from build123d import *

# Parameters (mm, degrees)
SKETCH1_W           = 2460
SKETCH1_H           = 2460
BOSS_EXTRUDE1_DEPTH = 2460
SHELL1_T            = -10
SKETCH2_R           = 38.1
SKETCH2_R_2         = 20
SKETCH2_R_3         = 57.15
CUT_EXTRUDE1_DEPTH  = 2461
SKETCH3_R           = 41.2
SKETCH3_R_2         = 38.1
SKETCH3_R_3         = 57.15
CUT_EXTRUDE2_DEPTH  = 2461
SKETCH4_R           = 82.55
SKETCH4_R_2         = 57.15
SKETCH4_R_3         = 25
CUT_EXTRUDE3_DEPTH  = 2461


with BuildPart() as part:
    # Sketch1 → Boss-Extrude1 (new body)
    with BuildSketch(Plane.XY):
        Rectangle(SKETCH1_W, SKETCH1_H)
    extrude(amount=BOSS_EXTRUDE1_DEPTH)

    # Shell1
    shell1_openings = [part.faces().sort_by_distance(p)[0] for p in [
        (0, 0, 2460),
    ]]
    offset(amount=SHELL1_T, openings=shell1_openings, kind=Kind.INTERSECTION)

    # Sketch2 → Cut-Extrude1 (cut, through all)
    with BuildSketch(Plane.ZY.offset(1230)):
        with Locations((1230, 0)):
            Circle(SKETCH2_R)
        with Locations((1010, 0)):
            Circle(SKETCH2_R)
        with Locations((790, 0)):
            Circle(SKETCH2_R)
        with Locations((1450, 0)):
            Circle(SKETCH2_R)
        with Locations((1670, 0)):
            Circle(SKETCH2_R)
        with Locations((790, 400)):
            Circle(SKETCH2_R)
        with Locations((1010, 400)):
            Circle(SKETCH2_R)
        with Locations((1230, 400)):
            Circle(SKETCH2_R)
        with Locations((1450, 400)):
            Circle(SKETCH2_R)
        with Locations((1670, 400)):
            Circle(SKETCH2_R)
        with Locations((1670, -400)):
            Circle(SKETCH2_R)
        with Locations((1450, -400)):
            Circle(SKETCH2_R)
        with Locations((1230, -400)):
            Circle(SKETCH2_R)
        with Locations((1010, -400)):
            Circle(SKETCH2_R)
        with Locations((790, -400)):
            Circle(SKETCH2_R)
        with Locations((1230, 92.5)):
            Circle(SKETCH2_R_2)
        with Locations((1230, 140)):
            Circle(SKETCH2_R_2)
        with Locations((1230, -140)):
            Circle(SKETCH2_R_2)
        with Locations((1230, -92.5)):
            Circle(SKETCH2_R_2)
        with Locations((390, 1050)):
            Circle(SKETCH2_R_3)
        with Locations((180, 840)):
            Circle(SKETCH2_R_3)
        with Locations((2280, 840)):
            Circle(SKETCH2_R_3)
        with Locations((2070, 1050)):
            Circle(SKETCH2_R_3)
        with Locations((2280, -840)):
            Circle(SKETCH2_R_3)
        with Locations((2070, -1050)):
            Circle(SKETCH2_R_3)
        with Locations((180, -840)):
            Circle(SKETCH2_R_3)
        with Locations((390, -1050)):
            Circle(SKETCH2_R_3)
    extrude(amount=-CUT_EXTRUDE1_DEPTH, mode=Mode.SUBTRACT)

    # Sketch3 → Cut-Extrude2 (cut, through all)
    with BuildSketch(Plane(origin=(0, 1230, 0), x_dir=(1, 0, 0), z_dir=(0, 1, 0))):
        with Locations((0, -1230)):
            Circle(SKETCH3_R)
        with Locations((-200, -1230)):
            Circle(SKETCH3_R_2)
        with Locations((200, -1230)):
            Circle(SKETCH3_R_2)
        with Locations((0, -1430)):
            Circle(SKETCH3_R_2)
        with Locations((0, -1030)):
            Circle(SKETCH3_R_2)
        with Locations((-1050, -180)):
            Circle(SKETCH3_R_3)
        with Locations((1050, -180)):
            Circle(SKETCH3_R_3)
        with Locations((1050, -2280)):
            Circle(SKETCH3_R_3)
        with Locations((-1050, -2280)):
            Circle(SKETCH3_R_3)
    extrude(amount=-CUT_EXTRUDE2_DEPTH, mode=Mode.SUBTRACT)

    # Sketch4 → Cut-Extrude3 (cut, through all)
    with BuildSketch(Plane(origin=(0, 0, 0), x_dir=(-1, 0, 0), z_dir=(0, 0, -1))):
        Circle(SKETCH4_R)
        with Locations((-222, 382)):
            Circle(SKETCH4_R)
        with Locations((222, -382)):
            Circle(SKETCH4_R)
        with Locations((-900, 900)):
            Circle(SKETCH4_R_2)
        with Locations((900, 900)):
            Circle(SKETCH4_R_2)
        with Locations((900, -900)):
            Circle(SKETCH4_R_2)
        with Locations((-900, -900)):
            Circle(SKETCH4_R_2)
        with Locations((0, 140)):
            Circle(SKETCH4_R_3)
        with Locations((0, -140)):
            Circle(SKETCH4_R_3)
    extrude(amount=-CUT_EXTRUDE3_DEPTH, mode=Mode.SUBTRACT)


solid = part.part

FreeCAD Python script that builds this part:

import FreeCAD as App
import Part
import Sketcher

V = App.Vector
Q = App.Units.Quantity


def faces_at(feature, points):
    """Names of the faces that lie closest to the given points."""
    faces = feature.Shape.Faces
    near = lambda p: min(range(len(faces)), key=lambda i: faces[i].distToShape(Part.Vertex(*p))[0])
    return sorted({f"Face{near(p) + 1}" for p in points})

doc = App.newDocument("Part")
body = doc.addObject("PartDesign::Body", "Body")

sketch1 = doc.addObject("Sketcher::SketchObject", "Sketch")
body.addObject(sketch1)
sketch1.AttachmentSupport = (doc.XY_Plane, [""])
sketch1.MapMode = "FlatFace"
sketch1.addGeometry(Part.LineSegment(V(-1230, 1230, 0), V(-1230, -1230, 0)), False)
sketch1.addGeometry(Part.LineSegment(V(-1230, -1230, 0), V(1230, -1230, 0)), False)
sketch1.addGeometry(Part.LineSegment(V(1230, -1230, 0), V(1230, 1230, 0)), False)
sketch1.addGeometry(Part.LineSegment(V(1230, 1230, 0), V(-1230, 1230, 0)), False)
sketch1.addConstraint(Sketcher.Constraint("Coincident", 0, 2, 1, 1))
sketch1.addConstraint(Sketcher.Constraint("Coincident", 1, 2, 2, 1))
sketch1.addConstraint(Sketcher.Constraint("Coincident", 2, 2, 3, 1))
sketch1.addConstraint(Sketcher.Constraint("Coincident", 3, 2, 0, 1))
sketch1.addConstraint(Sketcher.Constraint("Vertical", 0))
sketch1.addConstraint(Sketcher.Constraint("Horizontal", 1))
sketch1.addConstraint(Sketcher.Constraint("Vertical", 2))
sketch1.addConstraint(Sketcher.Constraint("Horizontal", 3))
sketch1.addConstraint(Sketcher.Constraint("Symmetric", 0, 2, 2, 2, -1, 1))
sketch1.addConstraint(Sketcher.Constraint("Equal", 3, 0))
sketch1.addConstraint(Sketcher.Constraint("DistanceX", 1, 1, 1, 2, Q("2460 mm")))
pad1 = doc.addObject("PartDesign::Pad", "Pad")
body.addObject(pad1)
pad1.Profile = sketch1
pad1.Length = 2460
doc.recompute()

thickness = doc.addObject("PartDesign::Thickness", "Thickness")
body.addObject(thickness)
thickness.Base = (pad1, faces_at(pad1, [(0, 0, 2460)]))
thickness.Value = 10
thickness.Reversed = True
thickness.Join = "Intersection"

sketch2 = doc.addObject("Sketcher::SketchObject", "Sketch001")
body.addObject(sketch2)
sketch2.AttachmentSupport = (doc.YZ_Plane, [""])
sketch2.MapMode = "FlatFace"
sketch2.AttachmentOffset = App.Placement(V(0, 0, -1230), App.Rotation())
sketch2.addGeometry(Part.Circle(V(0, 1230, 0), V(0, 0, 1), 38.1), False)
sketch2.addGeometry(Part.Circle(V(0, 1010, 0), V(0, 0, 1), 38.1), False)
sketch2.addGeometry(Part.Circle(V(0, 790, 0), V(0, 0, 1), 38.1), False)
sketch2.addGeometry(Part.Circle(V(0, 1450, 0), V(0, 0, 1), 38.1), False)
sketch2.addGeometry(Part.Circle(V(0, 1670, 0), V(0, 0, 1), 38.1), False)
sketch2.addGeometry(Part.Circle(V(400, 790, 0), V(0, 0, 1), 38.1), False)
sketch2.addGeometry(Part.Circle(V(400, 1010, 0), V(0, 0, 1), 38.1), False)
sketch2.addGeometry(Part.Circle(V(400, 1230, 0), V(0, 0, 1), 38.1), False)
sketch2.addGeometry(Part.Circle(V(400, 1450, 0), V(0, 0, 1), 38.1), False)
sketch2.addGeometry(Part.Circle(V(400, 1670, 0), V(0, 0, 1), 38.1), False)
sketch2.addGeometry(Part.Circle(V(-400, 1670, 0), V(0, 0, 1), 38.1), False)
sketch2.addGeometry(Part.Circle(V(-400, 1450, 0), V(0, 0, 1), 38.1), False)
sketch2.addGeometry(Part.Circle(V(-400, 1230, 0), V(0, 0, 1), 38.1), False)
sketch2.addGeometry(Part.Circle(V(-400, 1010, 0), V(0, 0, 1), 38.1), False)
sketch2.addGeometry(Part.Circle(V(-400, 790, 0), V(0, 0, 1), 38.1), False)
sketch2.addGeometry(Part.Circle(V(92.5, 1230, 0), V(0, 0, 1), 20), False)
sketch2.addGeometry(Part.Circle(V(140, 1230, 0), V(0, 0, 1), 20), False)
sketch2.addGeometry(Part.Circle(V(-140, 1230, 0), V(0, 0, 1), 20), False)
sketch2.addGeometry(Part.Circle(V(-92.5, 1230, 0), V(0, 0, 1), 20), False)
sketch2.addGeometry(Part.Circle(V(1050, 390, 0), V(0, 0, 1), 57.15), False)
sketch2.addGeometry(Part.Circle(V(840, 180, 0), V(0, 0, 1), 57.15), False)
sketch2.addGeometry(Part.Circle(V(840, 2280, 0), V(0, 0, 1), 57.15), False)
sketch2.addGeometry(Part.Circle(V(1050, 2070, 0), V(0, 0, 1), 57.15), False)
sketch2.addGeometry(Part.Circle(V(-840, 2280, 0), V(0, 0, 1), 57.15), False)
sketch2.addGeometry(Part.Circle(V(-1050, 2070, 0), V(0, 0, 1), 57.15), False)
sketch2.addGeometry(Part.Circle(V(-840, 180, 0), V(0, 0, 1), 57.15), False)
sketch2.addGeometry(Part.Circle(V(-1050, 390, 0), V(0, 0, 1), 57.15), False)
sketch2.addConstraint(Sketcher.Constraint("Equal", 0, 1))
sketch2.addConstraint(Sketcher.Constraint("Equal", 1, 2))
sketch2.addConstraint(Sketcher.Constraint("Equal", 2, 3))
sketch2.addConstraint(Sketcher.Constraint("Equal", 3, 4))
sketch2.addConstraint(Sketcher.Constraint("Equal", 4, 5))
sketch2.addConstraint(Sketcher.Constraint("Equal", 5, 6))
sketch2.addConstraint(Sketcher.Constraint("Equal", 6, 7))
sketch2.addConstraint(Sketcher.Constraint("Equal", 7, 8))
sketch2.addConstraint(Sketcher.Constraint("Equal", 8, 9))
sketch2.addConstraint(Sketcher.Constraint("Equal", 9, 10))
sketch2.addConstraint(Sketcher.Constraint("Equal", 10, 11))
sketch2.addConstraint(Sketcher.Constraint("Equal", 11, 12))
sketch2.addConstraint(Sketcher.Constraint("Equal", 12, 13))
sketch2.addConstraint(Sketcher.Constraint("Equal", 13, 14))
sketch2.addConstraint(Sketcher.Constraint("Equal", 15, 16))
sketch2.addConstraint(Sketcher.Constraint("Equal", 16, 17))
sketch2.addConstraint(Sketcher.Constraint("Equal", 17, 18))
sketch2.addConstraint(Sketcher.Constraint("Equal", 19, 20))
sketch2.addConstraint(Sketcher.Constraint("Equal", 20, 21))
sketch2.addConstraint(Sketcher.Constraint("Equal", 21, 22))
sketch2.addConstraint(Sketcher.Constraint("Equal", 22, 23))
sketch2.addConstraint(Sketcher.Constraint("Equal", 23, 24))
sketch2.addConstraint(Sketcher.Constraint("Equal", 24, 25))
sketch2.addConstraint(Sketcher.Constraint("Equal", 25, 26))
sketch2.addConstraint(Sketcher.Constraint("Symmetric", 9, 3, 10, 3, -2))
sketch2.addConstraint(Sketcher.Constraint("Symmetric", 8, 3, 11, 3, -2))
sketch2.addConstraint(Sketcher.Constraint("Symmetric", 7, 3, 12, 3, -2))
sketch2.addConstraint(Sketcher.Constraint("Symmetric", 6, 3, 13, 3, -2))
sketch2.addConstraint(Sketcher.Constraint("Symmetric", 5, 3, 14, 3, -2))
sketch2.addConstraint(Sketcher.Constraint("Symmetric", 16, 3, 17, 3, -2))
sketch2.addConstraint(Sketcher.Constraint("Symmetric", 15, 3, 18, 3, -2))
sketch2.addConstraint(Sketcher.Constraint("Symmetric", 21, 3, 23, 3, -2))
sketch2.addConstraint(Sketcher.Constraint("Symmetric", 22, 3, 24, 3, -2))
sketch2.addConstraint(Sketcher.Constraint("Symmetric", 20, 3, 25, 3, -2))
sketch2.addConstraint(Sketcher.Constraint("Symmetric", 19, 3, 26, 3, -2))
sketch2.addConstraint(Sketcher.Constraint("PointOnObject", 0, 3, -2))
sketch2.addConstraint(Sketcher.Constraint("PointOnObject", 1, 3, -2))
sketch2.addConstraint(Sketcher.Constraint("PointOnObject", 2, 3, -2))
sketch2.addConstraint(Sketcher.Constraint("PointOnObject", 3, 3, -2))
sketch2.addConstraint(Sketcher.Constraint("PointOnObject", 4, 3, -2))
sketch2.addConstraint(Sketcher.Constraint("Horizontal", 2, 3, 5, 3))
sketch2.addConstraint(Sketcher.Constraint("Horizontal", 1, 3, 6, 3))
sketch2.addConstraint(Sketcher.Constraint("Horizontal", 0, 3, 7, 3))
sketch2.addConstraint(Sketcher.Constraint("Horizontal", 3, 3, 8, 3))
sketch2.addConstraint(Sketcher.Constraint("Horizontal", 4, 3, 9, 3))
sketch2.addConstraint(Sketcher.Constraint("Horizontal", 12, 3, 15, 3))
sketch2.addConstraint(Sketcher.Constraint("Horizontal", 15, 3, 16, 3))
sketch2.addConstraint(Sketcher.Constraint("Vertical", 5, 3, 6, 3))
sketch2.addConstraint(Sketcher.Constraint("Vertical", 6, 3, 7, 3))
sketch2.addConstraint(Sketcher.Constraint("Vertical", 7, 3, 8, 3))
sketch2.addConstraint(Sketcher.Constraint("Vertical", 8, 3, 9, 3))
sketch2.addConstraint(Sketcher.Constraint("Vertical", 20, 3, 21, 3))
sketch2.addConstraint(Sketcher.Constraint("Vertical", 19, 3, 22, 3))
sketch2.addConstraint(Sketcher.Constraint("Diameter", 15, Q("40 mm")))
sketch2.addConstraint(Sketcher.Constraint("Diameter", 0, Q("76.2 mm")))
sketch2.addConstraint(Sketcher.Constraint("Diameter", 19, Q("114.3 mm")))
sketch2.addConstraint(Sketcher.Constraint("DistanceY", -1, 1, 0, 3, Q("1230 mm")))
sketch2.addConstraint(Sketcher.Constraint("DistanceY", -1, 1, 1, 3, Q("1010 mm")))
sketch2.addConstraint(Sketcher.Constraint("DistanceY", -1, 1, 2, 3, Q("790 mm")))
sketch2.addConstraint(Sketcher.Constraint("DistanceY", -1, 1, 3, 3, Q("1450 mm")))
sketch2.addConstraint(Sketcher.Constraint("DistanceY", -1, 1, 4, 3, Q("1670 mm")))
sketch2.addConstraint(Sketcher.Constraint("DistanceX", -1, 1, 5, 3, Q("400 mm")))
sketch2.addConstraint(Sketcher.Constraint("DistanceX", -1, 1, 16, 3, Q("140 mm")))
sketch2.addConstraint(Sketcher.Constraint("DistanceX", -1, 1, 19, 3, Q("1050 mm")))
sketch2.addConstraint(Sketcher.Constraint("DistanceY", -1, 1, 19, 3, Q("390 mm")))
sketch2.addConstraint(Sketcher.Constraint("DistanceX", -1, 1, 20, 3, Q("840 mm")))
sketch2.addConstraint(Sketcher.Constraint("DistanceY", -1, 1, 20, 3, Q("180 mm")))
sketch2.addConstraint(Sketcher.Constraint("DistanceY", -1, 1, 21, 3, Q("2280 mm")))
sketch2.addConstraint(Sketcher.Constraint("DistanceY", -1, 1, 22, 3, Q("2070 mm")))
sketch2.addConstraint(Sketcher.Constraint("DistanceX", 18, 3, 15, 3, Q("185 mm")))
pocket1 = doc.addObject("PartDesign::Pocket", "Pocket")
body.addObject(pocket1)
pocket1.Profile = sketch2
pocket1.Type = "ThroughAll"
pocket1.Reversed = True

sketch3 = doc.addObject("Sketcher::SketchObject", "Sketch002")
body.addObject(sketch3)
sketch3.AttachmentSupport = (doc.XZ_Plane, [""])
sketch3.MapMode = "FlatFace"
sketch3.AttachmentOffset = App.Placement(V(0, 0, -1230), App.Rotation())
sketch3.addGeometry(Part.Circle(V(0, 1230, 0), V(0, 0, 1), 41.2), False)
sketch3.addGeometry(Part.Circle(V(-200, 1230, 0), V(0, 0, 1), 38.1), False)
sketch3.addGeometry(Part.Circle(V(200, 1230, 0), V(0, 0, 1), 38.1), False)
sketch3.addGeometry(Part.Circle(V(0, 1430, 0), V(0, 0, 1), 38.1), False)
sketch3.addGeometry(Part.Circle(V(0, 1030, 0), V(0, 0, 1), 38.1), False)
sketch3.addGeometry(Part.Circle(V(-1050, 180, 0), V(0, 0, 1), 57.15), False)
sketch3.addGeometry(Part.Circle(V(1050, 180, 0), V(0, 0, 1), 57.15), False)
sketch3.addGeometry(Part.Circle(V(1050, 2280, 0), V(0, 0, 1), 57.15), False)
sketch3.addGeometry(Part.Circle(V(-1050, 2280, 0), V(0, 0, 1), 57.15), False)
sketch3.addConstraint(Sketcher.Constraint("Equal", 1, 2))
sketch3.addConstraint(Sketcher.Constraint("Equal", 2, 3))
sketch3.addConstraint(Sketcher.Constraint("Equal", 3, 4))
sketch3.addConstraint(Sketcher.Constraint("Equal", 5, 6))
sketch3.addConstraint(Sketcher.Constraint("Equal", 6, 7))
sketch3.addConstraint(Sketcher.Constraint("Equal", 7, 8))
sketch3.addConstraint(Sketcher.Constraint("Symmetric", 1, 3, 2, 3, -2))
sketch3.addConstraint(Sketcher.Constraint("Symmetric", 5, 3, 6, 3, -2))
sketch3.addConstraint(Sketcher.Constraint("Symmetric", 7, 3, 8, 3, -2))
sketch3.addConstraint(Sketcher.Constraint("PointOnObject", 0, 3, -2))
sketch3.addConstraint(Sketcher.Constraint("PointOnObject", 3, 3, -2))
sketch3.addConstraint(Sketcher.Constraint("PointOnObject", 4, 3, -2))
sketch3.addConstraint(Sketcher.Constraint("Horizontal", 0, 3, 1, 3))
sketch3.addConstraint(Sketcher.Constraint("Vertical", 6, 3, 7, 3))
sketch3.addConstraint(Sketcher.Constraint("Diameter", 0, Q("82.4 mm")))
sketch3.addConstraint(Sketcher.Constraint("Diameter", 1, Q("76.2 mm")))
sketch3.addConstraint(Sketcher.Constraint("Diameter", 5, Q("114.3 mm")))
sketch3.addConstraint(Sketcher.Constraint("DistanceY", -1, 1, 0, 3, Q("1230 mm")))
sketch3.addConstraint(Sketcher.Constraint("DistanceX", 1, 3, -1, 1, Q("200 mm")))
sketch3.addConstraint(Sketcher.Constraint("DistanceY", -1, 1, 3, 3, Q("1430 mm")))
sketch3.addConstraint(Sketcher.Constraint("DistanceY", -1, 1, 4, 3, Q("1030 mm")))
sketch3.addConstraint(Sketcher.Constraint("DistanceX", 5, 3, -1, 1, Q("1050 mm")))
sketch3.addConstraint(Sketcher.Constraint("DistanceY", -1, 1, 5, 3, Q("180 mm")))
sketch3.addConstraint(Sketcher.Constraint("DistanceY", -1, 1, 7, 3, Q("2280 mm")))
pocket2 = doc.addObject("PartDesign::Pocket", "Pocket001")
body.addObject(pocket2)
pocket2.Profile = sketch3
pocket2.Type = "ThroughAll"
pocket2.Reversed = True

sketch4 = doc.addObject("Sketcher::SketchObject", "Sketch003")
body.addObject(sketch4)
sketch4.AttachmentSupport = (doc.XY_Plane, [""])
sketch4.MapMode = "FlatFace"
sketch4.addGeometry(Part.Circle(V(0, 0, 0), V(0, 0, 1), 82.55), False)
sketch4.addGeometry(Part.Circle(V(222, 382, 0), V(0, 0, 1), 82.55), False)
sketch4.addGeometry(Part.Circle(V(-222, -382, 0), V(0, 0, 1), 82.55), False)
sketch4.addGeometry(Part.Circle(V(900, 900, 0), V(0, 0, 1), 57.15), False)
sketch4.addGeometry(Part.Circle(V(-900, 900, 0), V(0, 0, 1), 57.15), False)
sketch4.addGeometry(Part.Circle(V(-900, -900, 0), V(0, 0, 1), 57.15), False)
sketch4.addGeometry(Part.Circle(V(900, -900, 0), V(0, 0, 1), 57.15), False)
sketch4.addGeometry(Part.Circle(V(0, 140, 0), V(0, 0, 1), 25), False)
sketch4.addGeometry(Part.Circle(V(0, -140, 0), V(0, 0, 1), 25), False)
sketch4.addConstraint(Sketcher.Constraint("Coincident", 0, 3, -1, 1))
sketch4.addConstraint(Sketcher.Constraint("Equal", 0, 1))
sketch4.addConstraint(Sketcher.Constraint("Equal", 1, 2))
sketch4.addConstraint(Sketcher.Constraint("Equal", 3, 4))
sketch4.addConstraint(Sketcher.Constraint("Equal", 4, 5))
sketch4.addConstraint(Sketcher.Constraint("Equal", 5, 6))
sketch4.addConstraint(Sketcher.Constraint("Equal", 7, 8))
sketch4.addConstraint(Sketcher.Constraint("Symmetric", 1, 3, 2, 3, -1, 1))
sketch4.addConstraint(Sketcher.Constraint("Symmetric", 3, 3, 5, 3, -1, 1))
sketch4.addConstraint(Sketcher.Constraint("Symmetric", 4, 3, 6, 3, -1, 1))
sketch4.addConstraint(Sketcher.Constraint("Symmetric", 7, 3, 8, 3, -1, 1))
sketch4.addConstraint(Sketcher.Constraint("Symmetric", 3, 3, 4, 3, -2))
sketch4.addConstraint(Sketcher.Constraint("PointOnObject", 7, 3, -2))
sketch4.addConstraint(Sketcher.Constraint("Diameter", 7, Q("50 mm")))
sketch4.addConstraint(Sketcher.Constraint("Diameter", 0, Q("165.1 mm")))
sketch4.addConstraint(Sketcher.Constraint("Diameter", 3, Q("114.3 mm")))
sketch4.addConstraint(Sketcher.Constraint("DistanceX", -1, 1, 1, 3, Q("222 mm")))
sketch4.addConstraint(Sketcher.Constraint("DistanceY", -1, 1, 1, 3, Q("382 mm")))
sketch4.addConstraint(Sketcher.Constraint("DistanceX", -1, 1, 3, 3, Q("900 mm")))
sketch4.addConstraint(Sketcher.Constraint("DistanceY", -1, 1, 3, 3, Q("900 mm")))
sketch4.addConstraint(Sketcher.Constraint("DistanceY", -1, 1, 7, 3, Q("140 mm")))
pocket3 = doc.addObject("PartDesign::Pocket", "Pocket002")
body.addObject(pocket3)
pocket3.Profile = sketch4
pocket3.Type = "ThroughAll"
pocket3.Reversed = True

doc.recompute()
